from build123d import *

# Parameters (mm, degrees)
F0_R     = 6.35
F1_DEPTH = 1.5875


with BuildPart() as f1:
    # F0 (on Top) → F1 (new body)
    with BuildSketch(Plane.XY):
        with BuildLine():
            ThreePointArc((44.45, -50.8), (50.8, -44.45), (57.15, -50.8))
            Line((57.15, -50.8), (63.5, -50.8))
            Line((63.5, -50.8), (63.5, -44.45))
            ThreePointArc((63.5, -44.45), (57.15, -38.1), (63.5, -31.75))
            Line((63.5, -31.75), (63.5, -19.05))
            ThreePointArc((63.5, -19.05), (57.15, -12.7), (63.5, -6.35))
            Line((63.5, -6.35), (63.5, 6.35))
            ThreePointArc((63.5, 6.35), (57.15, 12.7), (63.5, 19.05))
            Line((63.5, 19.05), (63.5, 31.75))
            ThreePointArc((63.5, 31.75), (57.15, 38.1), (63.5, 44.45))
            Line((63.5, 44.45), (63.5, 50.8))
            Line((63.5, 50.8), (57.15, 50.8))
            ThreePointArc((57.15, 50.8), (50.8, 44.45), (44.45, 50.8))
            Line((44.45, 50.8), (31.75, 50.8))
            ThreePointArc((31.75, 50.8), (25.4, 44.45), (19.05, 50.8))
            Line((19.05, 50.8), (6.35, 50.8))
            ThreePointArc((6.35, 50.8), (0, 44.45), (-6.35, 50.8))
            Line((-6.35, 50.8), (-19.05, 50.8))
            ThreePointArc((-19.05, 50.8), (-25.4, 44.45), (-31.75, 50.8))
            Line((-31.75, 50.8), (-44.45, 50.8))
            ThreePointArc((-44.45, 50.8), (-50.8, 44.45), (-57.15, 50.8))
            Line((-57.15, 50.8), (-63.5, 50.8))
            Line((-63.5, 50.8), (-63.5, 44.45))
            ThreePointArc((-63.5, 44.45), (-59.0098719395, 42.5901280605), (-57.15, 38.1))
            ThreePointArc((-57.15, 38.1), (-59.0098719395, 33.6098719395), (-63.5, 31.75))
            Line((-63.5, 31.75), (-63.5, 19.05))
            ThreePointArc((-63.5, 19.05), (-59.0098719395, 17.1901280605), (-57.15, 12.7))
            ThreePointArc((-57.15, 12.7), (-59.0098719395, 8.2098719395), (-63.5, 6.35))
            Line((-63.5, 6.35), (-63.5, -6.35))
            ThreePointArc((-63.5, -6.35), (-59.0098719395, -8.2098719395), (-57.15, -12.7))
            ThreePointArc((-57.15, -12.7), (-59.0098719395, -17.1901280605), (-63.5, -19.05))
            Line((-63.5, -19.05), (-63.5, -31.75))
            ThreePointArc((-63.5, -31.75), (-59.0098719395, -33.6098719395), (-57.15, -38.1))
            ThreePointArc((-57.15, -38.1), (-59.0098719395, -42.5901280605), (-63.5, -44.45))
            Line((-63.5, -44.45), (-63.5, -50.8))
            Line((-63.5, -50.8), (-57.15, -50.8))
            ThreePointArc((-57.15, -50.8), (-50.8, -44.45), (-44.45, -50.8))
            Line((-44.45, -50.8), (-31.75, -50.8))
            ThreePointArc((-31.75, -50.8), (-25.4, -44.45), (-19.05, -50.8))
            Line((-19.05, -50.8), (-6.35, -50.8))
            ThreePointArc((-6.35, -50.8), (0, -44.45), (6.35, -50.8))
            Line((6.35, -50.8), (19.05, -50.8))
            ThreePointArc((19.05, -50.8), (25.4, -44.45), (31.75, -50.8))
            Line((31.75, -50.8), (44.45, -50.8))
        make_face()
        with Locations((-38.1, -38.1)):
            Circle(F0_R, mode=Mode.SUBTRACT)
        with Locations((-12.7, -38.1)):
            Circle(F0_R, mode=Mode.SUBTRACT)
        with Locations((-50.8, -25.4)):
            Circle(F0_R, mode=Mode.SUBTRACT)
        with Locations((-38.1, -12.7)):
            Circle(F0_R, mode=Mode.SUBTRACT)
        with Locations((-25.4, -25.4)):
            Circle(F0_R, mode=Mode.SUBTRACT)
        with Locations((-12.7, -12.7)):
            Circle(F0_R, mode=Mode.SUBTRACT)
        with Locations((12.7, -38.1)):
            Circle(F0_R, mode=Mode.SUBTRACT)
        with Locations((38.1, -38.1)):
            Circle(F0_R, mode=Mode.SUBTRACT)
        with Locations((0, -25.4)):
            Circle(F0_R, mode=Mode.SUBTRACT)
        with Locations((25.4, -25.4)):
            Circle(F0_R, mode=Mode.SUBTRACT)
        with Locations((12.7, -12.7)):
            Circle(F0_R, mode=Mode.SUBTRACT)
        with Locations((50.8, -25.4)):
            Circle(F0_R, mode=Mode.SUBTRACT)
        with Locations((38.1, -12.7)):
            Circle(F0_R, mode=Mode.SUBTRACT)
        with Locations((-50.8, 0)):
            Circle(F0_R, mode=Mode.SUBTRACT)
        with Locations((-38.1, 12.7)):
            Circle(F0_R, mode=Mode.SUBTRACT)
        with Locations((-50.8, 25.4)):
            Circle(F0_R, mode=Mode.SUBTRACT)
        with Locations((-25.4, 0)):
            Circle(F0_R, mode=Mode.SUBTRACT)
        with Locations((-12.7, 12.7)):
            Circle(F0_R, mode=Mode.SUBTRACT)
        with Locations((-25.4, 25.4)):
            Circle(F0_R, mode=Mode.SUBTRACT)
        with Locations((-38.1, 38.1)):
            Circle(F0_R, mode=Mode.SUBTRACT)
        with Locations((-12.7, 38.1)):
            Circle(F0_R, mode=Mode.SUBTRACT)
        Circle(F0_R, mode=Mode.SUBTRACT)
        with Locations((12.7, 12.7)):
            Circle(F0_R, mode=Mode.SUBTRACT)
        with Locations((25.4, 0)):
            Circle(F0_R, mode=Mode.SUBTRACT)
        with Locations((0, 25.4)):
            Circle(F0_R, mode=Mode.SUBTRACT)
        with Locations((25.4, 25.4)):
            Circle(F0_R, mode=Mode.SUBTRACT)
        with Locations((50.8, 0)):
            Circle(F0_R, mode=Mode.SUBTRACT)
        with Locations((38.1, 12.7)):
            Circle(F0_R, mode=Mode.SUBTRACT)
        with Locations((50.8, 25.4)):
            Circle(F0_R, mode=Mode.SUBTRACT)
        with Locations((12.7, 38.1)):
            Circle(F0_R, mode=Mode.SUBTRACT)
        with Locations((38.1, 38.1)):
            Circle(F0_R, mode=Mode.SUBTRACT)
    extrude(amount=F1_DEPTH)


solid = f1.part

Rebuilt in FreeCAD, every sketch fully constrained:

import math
import FreeCAD as App
import Part
import Sketcher
Q = App.Units.Quantity

doc = App.newDocument("Part")
body = doc.addObject("PartDesign::Body", "Body")

# Sketch on XY plane
sketch1 = doc.addObject("Sketcher::SketchObject", "Sketch")
body.addObject(sketch1)
sketch1.AttachmentSupport = (doc.XY_Plane, [""])
sketch1.MapMode = "FlatFace"
sketch1.addGeometry([
    Part.ArcOfCircle(Part.Circle(App.Vector(51, -51, 0), App.Vector(0, 0, 1), 6), math.radians(0), math.radians(180)),  # 0
    Part.LineSegment(App.Vector(57, -51, 0), App.Vector(64, -51, 0)),  # 1
    Part.LineSegment(App.Vector(64, -51, 0), App.Vector(64, -44, 0)),  # 2
    Part.ArcOfCircle(Part.Circle(App.Vector(64, -38, 0), App.Vector(0, 0, 1), 6), math.radians(90), math.radians(270)),  # 3
    Part.LineSegment(App.Vector(64, -32, 0), App.Vector(64, -19, 0)),  # 4
    Part.ArcOfCircle(Part.Circle(App.Vector(64, -13, 0), App.Vector(0, 0, 1), 6), math.radians(90), math.radians(270)),  # 5
    Part.LineSegment(App.Vector(64, -6, 0), App.Vector(64, 6, 0)),  # 6
    Part.ArcOfCircle(Part.Circle(App.Vector(64, 13, 0), App.Vector(0, 0, 1), 6), math.radians(90), math.radians(270)),  # 7
    Part.LineSegment(App.Vector(64, 19, 0), App.Vector(64, 32, 0)),  # 8
    Part.ArcOfCircle(Part.Circle(App.Vector(64, 38, 0), App.Vector(0, 0, 1), 6), math.radians(90), math.radians(270)),  # 9
    Part.LineSegment(App.Vector(64, 44, 0), App.Vector(64, 51, 0)),  # 10
    Part.LineSegment(App.Vector(64, 51, 0), App.Vector(57, 51, 0)),  # 11
    Part.ArcOfCircle(Part.Circle(App.Vector(51, 51, 0), App.Vector(0, 0, 1), 6), math.radians(180), math.radians(360)),  # 12
    Part.LineSegment(App.Vector(44, 51, 0), App.Vector(32, 51, 0)),  # 13
    Part.ArcOfCircle(Part.Circle(App.Vector(25, 51, 0), App.Vector(0, 0, 1), 6), math.radians(180), math.radians(360)),  # 14
    Part.LineSegment(App.Vector(19, 51, 0), App.Vector(6, 51, 0)),  # 15
    Part.ArcOfCircle(Part.Circle(App.Vector(0, 51, 0), App.Vector(0, 0, 1), 6), math.radians(180), math.radians(360)),  # 16
    Part.LineSegment(App.Vector(-6, 51, 0), App.Vector(-19, 51, 0)),  # 17
    Part.ArcOfCircle(Part.Circle(App.Vector(-25, 51, 0), App.Vector(0, 0, 1), 6), math.radians(180), math.radians(360)),  # 18
    Part.LineSegment(App.Vector(-32, 51, 0), App.Vector(-44, 51, 0)),  # 19
    Part.ArcOfCircle(Part.Circle(App.Vector(-51, 51, 0), App.Vector(0, 0, 1), 6), math.radians(180), math.radians(360)),  # 20
    Part.LineSegment(App.Vector(-57, 51, 0), App.Vector(-64, 51, 0)),  # 21
    Part.LineSegment(App.Vector(-64, 51, 0), App.Vector(-64, 44, 0)),  # 22
    Part.ArcOfCircle(Part.Circle(App.Vector(-64, 38, 0), App.Vector(0, 0, 1), 6), math.radians(0), math.radians(90)),  # 23
    Part.ArcOfCircle(Part.Circle(App.Vector(-64, 38, 0), App.Vector(0, 0, 1), 6), math.radians(-90), math.radians(0)),  # 24
    Part.LineSegment(App.Vector(-64, 32, 0), App.Vector(-64, 19, 0)),  # 25
    Part.ArcOfCircle(Part.Circle(App.Vector(-64, 13, 0), App.Vector(0, 0, 1), 6), math.radians(0), math.radians(90)),  # 26
    Part.ArcOfCircle(Part.Circle(App.Vector(-64, 13, 0), App.Vector(0, 0, 1), 6), math.radians(-90), math.radians(0)),  # 27
    Part.LineSegment(App.Vector(-64, 6, 0), App.Vector(-64, -6, 0)),  # 28
    Part.ArcOfCircle(Part.Circle(App.Vector(-64, -13, 0), App.Vector(0, 0, 1), 6), math.radians(0), math.radians(90)),  # 29
    Part.ArcOfCircle(Part.Circle(App.Vector(-64, -13, 0), App.Vector(0, 0, 1), 6), math.radians(-90), math.radians(0)),  # 30
    Part.LineSegment(App.Vector(-64, -19, 0), App.Vector(-64, -32, 0)),  # 31
    Part.ArcOfCircle(Part.Circle(App.Vector(-64, -38, 0), App.Vector(0, 0, 1), 6), math.radians(0), math.radians(90)),  # 32
    Part.ArcOfCircle(Part.Circle(App.Vector(-64, -38, 0), App.Vector(0, 0, 1), 6), math.radians(-90), math.radians(0)),  # 33
    Part.LineSegment(App.Vector(-64, -44, 0), App.Vector(-64, -51, 0)),  # 34
    Part.LineSegment(App.Vector(-64, -51, 0), App.Vector(-57, -51, 0)),  # 35
    Part.ArcOfCircle(Part.Circle(App.Vector(-51, -51, 0), App.Vector(0, 0, 1), 6), math.radians(0), math.radians(180)),  # 36
    Part.LineSegment(App.Vector(-44, -51, 0), App.Vector(-32, -51, 0)),  # 37
    Part.ArcOfCircle(Part.Circle(App.Vector(-25, -51, 0), App.Vector(0, 0, 1), 6), math.radians(0), math.radians(180)),  # 38
    Part.LineSegment(App.Vector(-19, -51, 0), App.Vector(-6, -51, 0)),  # 39
    Part.ArcOfCircle(Part.Circle(App.Vector(0, -51, 0), App.Vector(0, 0, 1), 6), math.radians(0), math.radians(180)),  # 40
    Part.LineSegment(App.Vector(6, -51, 0), App.Vector(19, -51, 0)),  # 41
    Part.ArcOfCircle(Part.Circle(App.Vector(25, -51, 0), App.Vector(0, 0, 1), 6), math.radians(0), math.radians(180)),  # 42
    Part.LineSegment(App.Vector(32, -51, 0), App.Vector(44, -51, 0)),  # 43
    Part.Circle(App.Vector(-38, -38, 0), App.Vector(0, 0, 1), 6),  # 44
    Part.Circle(App.Vector(-51, -25, 0), App.Vector(0, 0, 1), 6),  # 45
    Part.Circle(App.Vector(-13, -38, 0), App.Vector(0, 0, 1), 6),  # 46
    Part.Circle(App.Vector(-25, -25, 0), App.Vector(0, 0, 1), 6),  # 47
    Part.Circle(App.Vector(-38, -13, 0), App.Vector(0, 0, 1), 6),  # 48
    Part.Circle(App.Vector(-13, -13, 0), App.Vector(0, 0, 1), 6),  # 49
    Part.Circle(App.Vector(13, -38, 0), App.Vector(0, 0, 1), 6),  # 50
    Part.Circle(App.Vector(0, -25, 0), App.Vector(0, 0, 1), 6),  # 51
    Part.Circle(App.Vector(25, -25, 0), App.Vector(0, 0, 1), 6),  # 52
    Part.Circle(App.Vector(38, -38, 0), App.Vector(0, 0, 1), 6),  # 53
    Part.Circle(App.Vector(51, -25, 0), App.Vector(0, 0, 1), 6),  # 54
    Part.Circle(App.Vector(13, -13, 0), App.Vector(0, 0, 1), 6),  # 55
    Part.Circle(App.Vector(38, -13, 0), App.Vector(0, 0, 1), 6),  # 56
    Part.Circle(App.Vector(-51, 0, 0), App.Vector(0, 0, 1), 6),  # 57
    Part.Circle(App.Vector(-38, 13, 0), App.Vector(0, 0, 1), 6),  # 58
    Part.Circle(App.Vector(-25, 0, 0), App.Vector(0, 0, 1), 6),  # 59
    Part.Circle(App.Vector(-13, 13, 0), App.Vector(0, 0, 1), 6),  # 60
    Part.Circle(App.Vector(-51, 25, 0), App.Vector(0, 0, 1), 6),  # 61
    Part.Circle(App.Vector(-38, 38, 0), App.Vector(0, 0, 1), 6),  # 62
    Part.Circle(App.Vector(-25, 25, 0), App.Vector(0, 0, 1), 6),  # 63
    Part.Circle(App.Vector(-13, 38, 0), App.Vector(0, 0, 1), 6),  # 64
    Part.Circle(App.Vector(0, 0, 0), App.Vector(0, 0, 1), 6),  # 65
    Part.Circle(App.Vector(25, 0, 0), App.Vector(0, 0, 1), 6),  # 66
    Part.Circle(App.Vector(13, 13, 0), App.Vector(0, 0, 1), 6),  # 67
    Part.Circle(App.Vector(51, 0, 0), App.Vector(0, 0, 1), 6),  # 68
    Part.Circle(App.Vector(38, 13, 0), App.Vector(0, 0, 1), 6),  # 69
    Part.Circle(App.Vector(0, 25, 0), App.Vector(0, 0, 1), 6),  # 70
    Part.Circle(App.Vector(25, 25, 0), App.Vector(0, 0, 1), 6),  # 71
    Part.Circle(App.Vector(13, 38, 0), App.Vector(0, 0, 1), 6),  # 72
    Part.Circle(App.Vector(51, 25, 0), App.Vector(0, 0, 1), 6),  # 73
    Part.Circle(App.Vector(38, 38, 0), App.Vector(0, 0, 1), 6),  # 74
], False)
sketch1.addConstraint([
    Sketcher.Constraint("Coincident", 0, 1, 1, 1),
    Sketcher.Constraint("Coincident", 1, 2, 2, 1),
    Sketcher.Constraint("Coincident", 2, 2, 3, 2),
    Sketcher.Constraint("Coincident", 3, 1, 4, 1),
    Sketcher.Constraint("Coincident", 4, 2, 5, 2),
    Sketcher.Constraint("Coincident", 5, 1, 6, 1),
    Sketcher.Constraint("Coincident", 6, 2, 7, 2),
    Sketcher.Constraint("Coincident", 7, 1, 8, 1),
    Sketcher.Constraint("Coincident", 8, 2, 9, 2),
    Sketcher.Constraint("Coincident", 9, 1, 10, 1),
    Sketcher.Constraint("Coincident", 10, 2, 11, 1),
    Sketcher.Constraint("Coincident", 11, 2, 12, 2),
    Sketcher.Constraint("Coincident", 12, 1, 13, 1),
    Sketcher.Constraint("Coincident", 13, 2, 14, 2),
    Sketcher.Constraint("Coincident", 14, 1, 15, 1),
    Sketcher.Constraint("Coincident", 15, 2, 16, 2),
    Sketcher.Constraint("Coincident", 16, 1, 17, 1),
    Sketcher.Constraint("Coincident", 17, 2, 18, 2),
    Sketcher.Constraint("Coincident", 18, 1, 19, 1),
    Sketcher.Constraint("Coincident", 19, 2, 20, 2),
    Sketcher.Constraint("Coincident", 20, 1, 21, 1),
    Sketcher.Constraint("Coincident", 21, 2, 22, 1),
    Sketcher.Constraint("Coincident", 22, 2, 23, 2),
    Sketcher.Constraint("Tangent", 23, 1, 24, 2),
    Sketcher.Constraint("Coincident", 24, 1, 25, 1),
    Sketcher.Constraint("Coincident", 25, 2, 26, 2),
    Sketcher.Constraint("Tangent", 26, 1, 27, 2),
    Sketcher.Constraint("Coincident", 27, 1, 28, 1),
    Sketcher.Constraint("Coincident", 28, 2, 29, 2),
    Sketcher.Constraint("Tangent", 29, 1, 30, 2),
    Sketcher.Constraint("Coincident", 30, 1, 31, 1),
    Sketcher.Constraint("Coincident", 31, 2, 32, 2),
    Sketcher.Constraint("Tangent", 32, 1, 33, 2),
    Sketcher.Constraint("Coincident", 33, 1, 34, 1),
    Sketcher.Constraint("Coincident", 34, 2, 35, 1),
    Sketcher.Constraint("Coincident", 35, 2, 36, 2),
    Sketcher.Constraint("Coincident", 36, 1, 37, 1),
    Sketcher.Constraint("Coincident", 37, 2, 38, 2),
    Sketcher.Constraint("Coincident", 38, 1, 39, 1),
    Sketcher.Constraint("Coincident", 39, 2, 40, 2),
    Sketcher.Constraint("Coincident", 40, 1, 41, 1),
    Sketcher.Constraint("Coincident", 41, 2, 42, 2),
    Sketcher.Constraint("Coincident", 42, 1, 43, 1),
    Sketcher.Constraint("Coincident", 43, 2, 0, 2),
    Sketcher.Constraint("Horizontal", 1),
    Sketcher.Constraint("Vertical", 2),
    Sketcher.Constraint("Vertical", 4),
    Sketcher.Constraint("Vertical", 6),
    Sketcher.Constraint("Vertical", 8),
    Sketcher.Constraint("Vertical", 10),
    Sketcher.Constraint("Horizontal", 11),
    Sketcher.Constraint("Horizontal", 13),
    Sketcher.Constraint("Horizontal", 15),
    Sketcher.Constraint("Horizontal", 17),
    Sketcher.Constraint("Horizontal", 19),
    Sketcher.Constraint("Horizontal", 21),
    Sketcher.Constraint("Vertical", 22),
    Sketcher.Constraint("Vertical", 25),
    Sketcher.Constraint("Vertical", 28),
    Sketcher.Constraint("Vertical", 31),
    Sketcher.Constraint("Vertical", 34),
    Sketcher.Constraint("Horizontal", 35),
    Sketcher.Constraint("Horizontal", 37),
    Sketcher.Constraint("Horizontal", 39),
    Sketcher.Constraint("Horizontal", 41),
    Sketcher.Constraint("Horizontal", 43),
    Sketcher.Constraint("Coincident", 65, 3, -1, 1),
    Sketcher.Constraint("Equal", 0, 3),
    Sketcher.Constraint("Equal", 3, 5),
    Sketcher.Constraint("Equal", 5, 7),
    Sketcher.Constraint("Equal", 7, 9),
    Sketcher.Constraint("Equal", 9, 12),
    Sketcher.Constraint("Equal", 12, 14),
    Sketcher.Constraint("Equal", 14, 16),
    Sketcher.Constraint("Equal", 16, 18),
    Sketcher.Constraint("Equal", 18, 20),
    Sketcher.Constraint("Equal", 20, 23),
    Sketcher.Constraint("Equal", 23, 24),
    Sketcher.Constraint("Equal", 24, 26),
    Sketcher.Constraint("Equal", 26, 27),
    Sketcher.Constraint("Equal", 27, 29),
    Sketcher.Constraint("Equal", 29, 30),
    Sketcher.Constraint("Equal", 30, 32),
    Sketcher.Constraint("Equal", 32, 33),
    Sketcher.Constraint("Equal", 33, 36),
    Sketcher.Constraint("Equal", 36, 38),
    Sketcher.Constraint("Equal", 38, 40),
    Sketcher.Constraint("Equal", 40, 42),
    Sketcher.Constraint("Equal", 42, 44),
    Sketcher.Constraint("Equal", 44, 45),
    Sketcher.Constraint("Equal", 45, 46),
    Sketcher.Constraint("Equal", 46, 47),
    Sketcher.Constraint("Equal", 47, 48),
    Sketcher.Constraint("Equal", 48, 49),
    Sketcher.Constraint("Equal", 49, 50),
    Sketcher.Constraint("Equal", 50, 51),
    Sketcher.Constraint("Equal", 51, 52),
    Sketcher.Constraint("Equal", 52, 53),
    Sketcher.Constraint("Equal", 53, 54),
    Sketcher.Constraint("Equal", 54, 55),
    Sketcher.Constraint("Equal", 55, 56),
    Sketcher.Constraint("Equal", 56, 57),
    Sketcher.Constraint("Equal", 57, 58),
    Sketcher.Constraint("Equal", 58, 59),
    Sketcher.Constraint("Equal", 59, 60),
    Sketcher.Constraint("Equal", 60, 61),
    Sketcher.Constraint("Equal", 61, 62),
    Sketcher.Constraint("Equal", 62, 63),
    Sketcher.Constraint("Equal", 63, 64),
    Sketcher.Constraint("Equal", 64, 65),
    Sketcher.Constraint("Equal", 65, 66),
    Sketcher.Constraint("Equal", 66, 67),
    Sketcher.Constraint("Equal", 67, 68),
    Sketcher.Constraint("Equal", 68, 69),
    Sketcher.Constraint("Equal", 69, 70),
    Sketcher.Constraint("Equal", 70, 71),
    Sketcher.Constraint("Equal", 71, 72),
    Sketcher.Constraint("Equal", 72, 73),
    Sketcher.Constraint("Equal", 73, 74),
    Sketcher.Constraint("Symmetric", 0, 3, 20, 3, -1, 1),
    Sketcher.Constraint("Symmetric", 3, 3, 23, 3, -1, 1),
    Sketcher.Constraint("Symmetric", 5, 3, 26, 3, -1, 1),
    Sketcher.Constraint("Symmetric", 7, 3, 29, 3, -1, 1),
    Sketcher.Constraint("Symmetric", 9, 3, 32, 3, -1, 1),
    Sketcher.Constraint("Symmetric", 12, 3, 36, 3, -1, 1),
    Sketcher.Constraint("Symmetric", 14, 3, 38, 3, -1, 1),
    Sketcher.Constraint("Symmetric", 16, 3, 40, 3, -1, 1),
    Sketcher.Constraint("Symmetric", 18, 3, 42, 3, -1, 1),
    Sketcher.Constraint("Symmetric", 56, 3, 58, 3, -1, 1),
    Sketcher.Constraint("Symmetric", 55, 3, 60, 3, -1, 1),
    Sketcher.Constraint("Symmetric", 54, 3, 61, 3, -1, 1),
    Sketcher.Constraint("Symmetric", 53, 3, 62, 3, -1, 1),
    Sketcher.Constraint("Symmetric", 52, 3, 63, 3, -1, 1),
    Sketcher.Constraint("Symmetric", 50, 3, 64, 3, -1, 1),
    Sketcher.Constraint("Symmetric", 59, 3, 66, 3, -1, 1),
    Sketcher.Constraint("Symmetric", 49, 3, 67, 3, -1, 1),
    Sketcher.Constraint("Symmetric", 57, 3, 68, 3, -1, 1),
    Sketcher.Constraint("Symmetric", 48, 3, 69, 3, -1, 1),
    Sketcher.Constraint("Symmetric", 51, 3, 70, 3, -1, 1),
    Sketcher.Constraint("Symmetric", 47, 3, 71, 3, -1, 1),
    Sketcher.Constraint("Symmetric", 46, 3, 72, 3, -1, 1),
    Sketcher.Constraint("Symmetric", 45, 3, 73, 3, -1, 1),
    Sketcher.Constraint("Symmetric", 44, 3, 74, 3, -1, 1),
    Sketcher.Constraint("Symmetric", 1, 2, 21, 2, -1, 1),
    Sketcher.Constraint("Symmetric", 10, 2, 34, 2, -1, 1),
    Sketcher.Constraint("Symmetric", 14, 3, 18, 3, -2),
    Sketcher.Constraint("Symmetric", 12, 3, 20, 3, -2),
    Sketcher.Constraint("Symmetric", 9, 3, 23, 3, -2),
    Sketcher.Constraint("Symmetric", 7, 3, 26, 3, -2),
    Sketcher.Constraint("Symmetric", 46, 3, 50, 3, -2),
    Sketcher.Constraint("Symmetric", 47, 3, 52, 3, -2),
    Sketcher.Constraint("Symmetric", 44, 3, 53, 3, -2),
    Sketcher.Constraint("Symmetric", 45, 3, 54, 3, -2),
    Sketcher.Constraint("Symmetric", 49, 3, 55, 3, -2),
    Sketcher.Constraint("Symmetric", 48, 3, 56, 3, -2),
    Sketcher.Constraint("Symmetric", 15, 2, 16, 1, -2),
    Sketcher.Constraint("Symmetric", 10, 2, 21, 2, -2),
    Sketcher.Constraint("PointOnObject", 51, 3, -2),
    Sketcher.Constraint("PointOnObject", 57, 3, -1),
    Sketcher.Constraint("PointOnObject", 59, 3, -1),
    Sketcher.Constraint("Horizontal", 12, 3, 14, 3),
    Sketcher.Constraint("Horizontal", 14, 3, 16, 3),
    Sketcher.Constraint("Horizontal", 33, 3, 44, 3),
    Sketcher.Constraint("Horizontal", 44, 3, 46, 3),
    Sketcher.Constraint("Horizontal", 45, 3, 47, 3),
    Sketcher.Constraint("Horizontal", 30, 3, 48, 3),
    Sketcher.Constraint("Horizontal", 48, 3, 49, 3),
    Sketcher.Constraint("Horizontal", 47, 3, 51, 3),
    Sketcher.Constraint("Horizontal", 42, 3, 0, 1),
    Sketcher.Constraint("Horizontal", 11, 2, 12, 1),
    Sketcher.Constraint("Horizontal", 13, 2, 14, 1),
    Sketcher.Constraint("Horizontal", 17, 2, 18, 1),
    Sketcher.Constraint("Horizontal", 74, 3, 23, 1),
    Sketcher.Constraint("Horizontal", 69, 3, 26, 1),
    Sketcher.Constraint("Horizontal", 56, 3, 29, 1),
    Sketcher.Constraint("Horizontal", 53, 3, 32, 1),
    Sketcher.Constraint("Horizontal", 35, 2, 36, 1),
    Sketcher.Constraint("Horizontal", 37, 2, 38, 1),
    Sketcher.Constraint("Horizontal", 39, 2, 40, 1),
    Sketcher.Constraint("Horizontal", 41, 2, 42, 1),
    Sketcher.Constraint("Vertical", 3, 3, 5, 3),
    Sketcher.Constraint("Vertical", 36, 3, 45, 3),
    Sketcher.Constraint("Vertical", 38, 3, 47, 3),
    Sketcher.Constraint("Vertical", 44, 3, 48, 3),
    Sketcher.Constraint("Vertical", 46, 3, 49, 3),
    Sketcher.Constraint("Vertical", 45, 3, 57, 3),
    Sketcher.Constraint("Vertical", 47, 3, 59, 3),
    Sketcher.Constraint("Vertical", 9, 3, 1, 2),
    Sketcher.Constraint("Vertical", 2, 2, 3, 1),
    Sketcher.Constraint("Vertical", 4, 2, 5, 1),
    Sketcher.Constraint("Vertical", 6, 2, 7, 1),
    Sketcher.Constraint("Vertical", 20, 1, 23, 1),
    Sketcher.Constraint("Vertical", 22, 2, 24, 1),
    Sketcher.Constraint("Vertical", 25, 2, 27, 1),
    Sketcher.Constraint("Vertical", 28, 2, 30, 1),
    Sketcher.Constraint("Equal", 13, 15),
    Sketcher.Constraint("Equal", 35, 2),
    Sketcher.Constraint("Equal", 43, 4),
    Sketcher.Constraint("Equal", 4, 6),
    Sketcher.Constraint("Diameter", 44, Q("0.5 in")),
    Sketcher.Constraint("DistanceX", 13, 2, 13, 1, Q("0.5 in")),
    Sketcher.Constraint("DistanceY", 45, 3, -1, 1, Q("1 in")),
    Sketcher.Constraint("DistanceX", 44, 3, -1, 1, Q("1.5 in")),
    Sketcher.Constraint("DistanceX", 46, 3, -1, 1, Q("0.5 in")),
])
pad1 = doc.addObject("PartDesign::Pad", "Pad")
body.addObject(pad1)
pad1.Profile = sketch1
pad1.Length = Q("0.0625 in")

doc.recompute()
